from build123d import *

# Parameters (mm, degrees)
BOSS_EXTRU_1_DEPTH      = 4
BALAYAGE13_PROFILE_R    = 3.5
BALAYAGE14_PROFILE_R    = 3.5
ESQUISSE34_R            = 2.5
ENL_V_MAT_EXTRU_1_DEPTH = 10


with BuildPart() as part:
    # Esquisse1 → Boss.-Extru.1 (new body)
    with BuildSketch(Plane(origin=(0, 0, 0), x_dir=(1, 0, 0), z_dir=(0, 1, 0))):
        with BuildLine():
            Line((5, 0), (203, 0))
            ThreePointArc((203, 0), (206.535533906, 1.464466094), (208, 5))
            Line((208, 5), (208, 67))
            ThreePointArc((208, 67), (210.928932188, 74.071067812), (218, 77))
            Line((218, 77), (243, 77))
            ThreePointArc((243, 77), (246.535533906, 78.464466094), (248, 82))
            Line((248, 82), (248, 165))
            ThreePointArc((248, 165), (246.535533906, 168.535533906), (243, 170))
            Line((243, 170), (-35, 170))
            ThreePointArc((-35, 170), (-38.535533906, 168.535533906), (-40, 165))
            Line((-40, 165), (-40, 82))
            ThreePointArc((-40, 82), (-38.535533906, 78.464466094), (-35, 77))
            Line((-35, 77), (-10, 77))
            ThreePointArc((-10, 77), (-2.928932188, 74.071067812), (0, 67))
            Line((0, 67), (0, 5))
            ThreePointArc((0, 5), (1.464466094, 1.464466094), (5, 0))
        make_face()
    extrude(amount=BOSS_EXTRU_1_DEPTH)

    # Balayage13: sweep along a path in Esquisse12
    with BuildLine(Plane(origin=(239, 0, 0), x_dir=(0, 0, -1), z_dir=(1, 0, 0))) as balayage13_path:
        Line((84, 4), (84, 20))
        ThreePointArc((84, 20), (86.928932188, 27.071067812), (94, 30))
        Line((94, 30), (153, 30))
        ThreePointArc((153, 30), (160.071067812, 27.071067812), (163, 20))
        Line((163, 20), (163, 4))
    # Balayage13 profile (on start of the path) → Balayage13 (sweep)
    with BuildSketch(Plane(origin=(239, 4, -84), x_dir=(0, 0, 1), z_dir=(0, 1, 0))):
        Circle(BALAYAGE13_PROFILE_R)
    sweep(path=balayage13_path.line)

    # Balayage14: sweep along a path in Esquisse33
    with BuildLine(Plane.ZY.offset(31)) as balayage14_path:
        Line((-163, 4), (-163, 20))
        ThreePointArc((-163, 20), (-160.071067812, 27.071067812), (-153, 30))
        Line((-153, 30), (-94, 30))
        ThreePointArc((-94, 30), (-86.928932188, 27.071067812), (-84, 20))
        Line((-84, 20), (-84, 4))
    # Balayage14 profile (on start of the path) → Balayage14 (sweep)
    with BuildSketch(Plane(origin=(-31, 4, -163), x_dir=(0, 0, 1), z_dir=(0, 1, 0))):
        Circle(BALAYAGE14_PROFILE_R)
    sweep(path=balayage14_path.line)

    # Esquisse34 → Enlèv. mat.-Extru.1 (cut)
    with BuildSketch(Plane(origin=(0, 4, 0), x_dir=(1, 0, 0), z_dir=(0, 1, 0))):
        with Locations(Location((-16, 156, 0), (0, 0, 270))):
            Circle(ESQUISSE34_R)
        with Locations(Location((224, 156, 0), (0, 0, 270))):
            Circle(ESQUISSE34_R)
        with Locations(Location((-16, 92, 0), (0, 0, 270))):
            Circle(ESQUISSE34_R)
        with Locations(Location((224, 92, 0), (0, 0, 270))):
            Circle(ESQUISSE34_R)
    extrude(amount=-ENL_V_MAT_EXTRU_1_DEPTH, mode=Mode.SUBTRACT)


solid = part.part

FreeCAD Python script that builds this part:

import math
import FreeCAD as App
import Part
import Sketcher

V = App.Vector
Q = App.Units.Quantity

doc = App.newDocument("Part")
body = doc.addObject("PartDesign::Body", "Body")

# Sketch on XZ plane
sketch1 = doc.addObject("Sketcher::SketchObject", "Sketch")
body.addObject(sketch1)
sketch1.AttachmentSupport = (doc.XZ_Plane, [""])
sketch1.MapMode = "FlatFace"
sketch1.addGeometry([
    Part.LineSegment(V(5, 0, 0), V(203, 0, 0)),  # 0
    Part.ArcOfCircle(Part.Circle(V(203, -5, 0), V(0, 0, 1), 5), math.radians(0), math.radians(90)),  # 1
    Part.LineSegment(V(208, -5, 0), V(208, -67, 0)),  # 2
    Part.ArcOfCircle(Part.Circle(V(218, -67, 0), V(0, 0, 1), 10), math.radians(180), math.radians(270)),  # 3
    Part.LineSegment(V(218, -77, 0), V(243, -77, 0)),  # 4
    Part.ArcOfCircle(Part.Circle(V(243, -82, 0), V(0, 0, 1), 5), math.radians(0), math.radians(90)),  # 5
    Part.LineSegment(V(248, -82, 0), V(248, -165, 0)),  # 6
    Part.ArcOfCircle(Part.Circle(V(243, -165, 0), V(0, 0, 1), 5), math.radians(-90), math.radians(0)),  # 7
    Part.LineSegment(V(243, -170, 0), V(-35, -170, 0)),  # 8
    Part.ArcOfCircle(Part.Circle(V(-35, -165, 0), V(0, 0, 1), 5), math.radians(180), math.radians(270)),  # 9
    Part.LineSegment(V(-40, -165, 0), V(-40, -82, 0)),  # 10
    Part.ArcOfCircle(Part.Circle(V(-35, -82, 0), V(0, 0, 1), 5), math.radians(90), math.radians(180)),  # 11
    Part.LineSegment(V(-35, -77, 0), V(-10, -77, 0)),  # 12
    Part.ArcOfCircle(Part.Circle(V(-10, -67, 0), V(0, 0, 1), 10), math.radians(-90), math.radians(0)),  # 13
    Part.LineSegment(V(0, -67, 0), V(0, -5, 0)),  # 14
    Part.ArcOfCircle(Part.Circle(V(5, -5, 0), V(0, 0, 1), 5), math.radians(90), math.radians(180)),  # 15
], False)
sketch1.addConstraint([
    Sketcher.Constraint("Tangent", 0, 2, 1, 2),
    Sketcher.Constraint("Tangent", 1, 1, 2, 1),
    Sketcher.Constraint("Tangent", 2, 2, 3, 1),
    Sketcher.Constraint("Tangent", 3, 2, 4, 1),
    Sketcher.Constraint("Tangent", 4, 2, 5, 2),
    Sketcher.Constraint("Tangent", 5, 1, 6, 1),
    Sketcher.Constraint("Tangent", 6, 2, 7, 2),
    Sketcher.Constraint("Tangent", 7, 1, 8, 1),
    Sketcher.Constraint("Tangent", 8, 2, 9, 2),
    Sketcher.Constraint("Tangent", 9, 1, 10, 1),
    Sketcher.Constraint("Tangent", 10, 2, 11, 2),
    Sketcher.Constraint("Tangent", 11, 1, 12, 1),
    Sketcher.Constraint("Tangent", 12, 2, 13, 1),
    Sketcher.Constraint("Tangent", 13, 2, 14, 1),
    Sketcher.Constraint("Tangent", 14, 2, 15, 2),
    Sketcher.Constraint("Tangent", 15, 1, 0, 1),
    Sketcher.Constraint("Horizontal", 0),
    Sketcher.Constraint("Vertical", 2),
    Sketcher.Constraint("Horizontal", 4),
    Sketcher.Constraint("Vertical", 6),
    Sketcher.Constraint("Horizontal", 8),
    Sketcher.Constraint("Vertical", 10),
    Sketcher.Constraint("Horizontal", 12),
    Sketcher.Constraint("Vertical", 14),
    Sketcher.Constraint("Equal", 1, 5),
    Sketcher.Constraint("Equal", 5, 7),
    Sketcher.Constraint("Equal", 7, 9),
    Sketcher.Constraint("Equal", 9, 11),
    Sketcher.Constraint("Equal", 3, 13),
    Sketcher.Constraint("Equal", 11, 15),
    Sketcher.Constraint("PointOnObject", 0, 2, -1),
    Sketcher.Constraint("PointOnObject", 13, 2, -2),
    Sketcher.Constraint("Horizontal", 5, 3, 11, 3),
    Sketcher.Constraint("Equal", 4, 12),
    Sketcher.Constraint("Radius", 1, Q("5 mm")),
    Sketcher.Constraint("Radius", 3, Q("10 mm")),
    Sketcher.Constraint("DistanceX", 0, 1, 0, 2, Q("198 mm")),
    Sketcher.Constraint("DistanceX", 4, 1, 4, 2, Q("25 mm")),
    Sketcher.Constraint("DistanceY", 2, 2, 2, 1, Q("62 mm")),
    Sketcher.Constraint("DistanceY", 6, 2, 6, 1, Q("83 mm")),
])
pad1 = doc.addObject("PartDesign::Pad", "Pad")
body.addObject(pad1)
pad1.Profile = sketch1
pad1.Length = 4
pad1.Reversed = True

# Sketch on XZ plane
sketch2 = doc.addObject("Sketcher::SketchObject", "Sketch001")
body.addObject(sketch2)
sketch2.AttachmentSupport = (doc.XZ_Plane, [""])
sketch2.MapMode = "FlatFace"
sketch2.AttachmentOffset = App.Placement(V(0, 0, -4), App.Rotation())
sketch2.addGeometry(Part.Circle(V(239, -84, 0), V(0, 0, 1), 3.5), False)
sketch2.addConstraint([
    Sketcher.Constraint("Diameter", 0, Q("7 mm")),
    Sketcher.Constraint("DistanceX", -1, 1, 0, 3, Q("239 mm")),
    Sketcher.Constraint("DistanceY", 0, 3, -1, 1, Q("84 mm")),
])

# Sketch on YZ plane
sketch3 = doc.addObject("Sketcher::SketchObject", "Sketch002")
body.addObject(sketch3)
sketch3.AttachmentSupport = (doc.YZ_Plane, [""])
sketch3.MapMode = "FlatFace"
sketch3.AttachmentOffset = App.Placement(V(0, 0, 239), App.Rotation())
sketch3.addGeometry([
    Part.LineSegment(V(4, -84, 0), V(20, -84, 0)),  # 0
    Part.ArcOfCircle(Part.Circle(V(20, -94, 0), V(0, 0, 1), 10), math.radians(0), math.radians(90)),  # 1
    Part.LineSegment(V(30, -94, 0), V(30, -153, 0)),  # 2
    Part.ArcOfCircle(Part.Circle(V(20, -153, 0), V(0, 0, 1), 10), math.radians(-90), math.radians(0)),  # 3
    Part.LineSegment(V(20, -163, 0), V(4, -163, 0)),  # 4
], False)
sketch3.addConstraint([
    Sketcher.Constraint("Tangent", 0, 2, 1, 2),
    Sketcher.Constraint("Tangent", 1, 1, 2, 1),
    Sketcher.Constraint("Tangent", 2, 2, 3, 2),
    Sketcher.Constraint("Tangent", 3, 1, 4, 1),
    Sketcher.Constraint("Horizontal", 0),
    Sketcher.Constraint("Vertical", 2),
    Sketcher.Constraint("Horizontal", 4),
    Sketcher.Constraint("Equal", 1, 3),
    Sketcher.Constraint("Vertical", 0, 1, 4, 2),
    Sketcher.Constraint("Radius", 1, Q("10 mm")),
    Sketcher.Constraint("DistanceX", 0, 1, 0, 2, Q("16 mm")),
    Sketcher.Constraint("DistanceY", 2, 2, 2, 1, Q("59 mm")),
    Sketcher.Constraint("DistanceX", -1, 1, 1, 3, Q("20 mm")),
    Sketcher.Constraint("DistanceY", 1, 3, -1, 1, Q("94 mm")),
])
doc.recompute()

additivepipe = doc.addObject("PartDesign::AdditivePipe", "AdditivePipe")
body.addObject(additivepipe)
additivepipe.Profile = sketch2
additivepipe.Spine = (sketch3, ["Edge1", "Edge2", "Edge3", "Edge4", "Edge5"])

# Sketch on XZ plane
sketch4 = doc.addObject("Sketcher::SketchObject", "Sketch003")
body.addObject(sketch4)
sketch4.AttachmentSupport = (doc.XZ_Plane, [""])
sketch4.MapMode = "FlatFace"
sketch4.AttachmentOffset = App.Placement(V(0, 0, -4), App.Rotation())
sketch4.addGeometry(Part.Circle(V(-31, -163, 0), V(0, 0, 1), 3.5), False)
sketch4.addConstraint([
    Sketcher.Constraint("Diameter", 0, Q("7 mm")),
    Sketcher.Constraint("DistanceX", 0, 3, -1, 1, Q("31 mm")),
    Sketcher.Constraint("DistanceY", 0, 3, -1, 1, Q("163 mm")),
])

# Sketch on YZ plane
sketch5 = doc.addObject("Sketcher::SketchObject", "Sketch004")
body.addObject(sketch5)
sketch5.AttachmentSupport = (doc.YZ_Plane, [""])
sketch5.MapMode = "FlatFace"
sketch5.AttachmentOffset = App.Placement(V(0, 0, -31), App.Rotation())
sketch5.addGeometry([
    Part.LineSegment(V(4, -163, 0), V(20, -163, 0)),  # 0
    Part.ArcOfCircle(Part.Circle(V(20, -153, 0), V(0, 0, 1), 10), math.radians(-90), math.radians(0)),  # 1
    Part.LineSegment(V(30, -153, 0), V(30, -94, 0)),  # 2
    Part.ArcOfCircle(Part.Circle(V(20, -94, 0), V(0, 0, 1), 10), math.radians(0), math.radians(90)),  # 3
    Part.LineSegment(V(20, -84, 0), V(4, -84, 0)),  # 4
], False)
sketch5.addConstraint([
    Sketcher.Constraint("Tangent", 0, 2, 1, 1),
    Sketcher.Constraint("Tangent", 1, 2, 2, 1),
    Sketcher.Constraint("Tangent", 2, 2, 3, 1),
    Sketcher.Constraint("Tangent", 3, 2, 4, 1),
    Sketcher.Constraint("Horizontal", 0),
    Sketcher.Constraint("Vertical", 2),
    Sketcher.Constraint("Horizontal", 4),
    Sketcher.Constraint("Equal", 1, 3),
    Sketcher.Constraint("Vertical", 0, 1, 4, 2),
    Sketcher.Constraint("Radius", 1, Q("10 mm")),
    Sketcher.Constraint("DistanceX", 0, 1, 0, 2, Q("16 mm")),
    Sketcher.Constraint("DistanceY", 2, 1, 2, 2, Q("59 mm")),
    Sketcher.Constraint("DistanceX", -1, 1, 1, 3, Q("20 mm")),
    Sketcher.Constraint("DistanceY", 1, 3, -1, 1, Q("153 mm")),
])
doc.recompute()

additivepipe2 = doc.addObject("PartDesign::AdditivePipe", "AdditivePipe001")
body.addObject(additivepipe2)
additivepipe2.Profile = sketch4
additivepipe2.Spine = (sketch5, ["Edge1", "Edge2", "Edge3", "Edge4", "Edge5"])

# Sketch on XZ plane
sketch6 = doc.addObject("Sketcher::SketchObject", "Sketch005")
body.addObject(sketch6)
sketch6.AttachmentSupport = (doc.XZ_Plane, [""])
sketch6.MapMode = "FlatFace"
sketch6.AttachmentOffset = App.Placement(V(0, 0, -4), App.Rotation())
sketch6.addGeometry([
    Part.Circle(V(-16, -156, 0), V(0, 0, 1), 2.5),
    Part.Circle(V(224, -156, 0), V(0, 0, 1), 2.5),
    Part.Circle(V(-16, -92, 0), V(0, 0, 1), 2.5),
    Part.Circle(V(224, -92, 0), V(0, 0, 1), 2.5),
], False)
sketch6.addConstraint([
    Sketcher.Constraint("Equal", 0, 1),
    Sketcher.Constraint("Equal", 1, 2),
    Sketcher.Constraint("Equal", 2, 3),
    Sketcher.Constraint("Horizontal", 0, 3, 1, 3),
    Sketcher.Constraint("Horizontal", 2, 3, 3, 3),
    Sketcher.Constraint("Vertical", 0, 3, 2, 3),
    Sketcher.Constraint("Vertical", 1, 3, 3, 3),
    Sketcher.Constraint("Diameter", 0, Q("5 mm")),
    Sketcher.Constraint("DistanceX", 0, 3, -1, 1, Q("16 mm")),
    Sketcher.Constraint("DistanceY", 0, 3, -1, 1, Q("156 mm")),
    Sketcher.Constraint("DistanceX", -1, 1, 1, 3, Q("224 mm")),
    Sketcher.Constraint("DistanceY", 2, 3, -1, 1, Q("92 mm")),
])
pocket1 = doc.addObject("PartDesign::Pocket", "Pocket")
body.addObject(pocket1)
pocket1.Profile = sketch6
pocket1.Length = 10
pocket1.Reversed = True

doc.recompute()
